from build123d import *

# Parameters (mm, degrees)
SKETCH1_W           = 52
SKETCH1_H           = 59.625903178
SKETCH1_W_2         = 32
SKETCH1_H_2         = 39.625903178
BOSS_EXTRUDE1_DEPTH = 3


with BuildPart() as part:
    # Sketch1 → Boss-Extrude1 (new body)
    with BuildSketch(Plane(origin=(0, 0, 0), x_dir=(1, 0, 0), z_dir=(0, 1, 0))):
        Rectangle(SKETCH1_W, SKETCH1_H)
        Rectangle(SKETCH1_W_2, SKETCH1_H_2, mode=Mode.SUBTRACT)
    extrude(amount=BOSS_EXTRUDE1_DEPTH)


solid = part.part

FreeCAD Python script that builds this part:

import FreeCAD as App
import Part
import Sketcher


def add_polygon(sketch, points):
    """Adds a closed chain of lines whose ends are joined by coincident constraints."""
    first, n = sketch.GeometryCount, len(points)
    for a, b in zip(points, points[1:] + points[:1]):
        sketch.addGeometry(Part.LineSegment(App.Vector(*a, 0), App.Vector(*b, 0)), False)
    for i in range(n):
        sketch.addConstraint(Sketcher.Constraint("Coincident", first + i, 2, first + (i + 1) % n, 1))

doc = App.newDocument("Part")
body = doc.addObject("PartDesign::Body", "Body")

sketch1 = body.newObject("Sketcher::SketchObject", "Sketch")
sketch1.AttachmentSupport = (doc.getObject("XZ_Plane"), [""])
sketch1.MapMode = "FlatFace"
add_polygon(sketch1, [(-26, -30), (-26, 30), (26, 30), (26, -30)])
add_polygon(sketch1, [(16, 20), (-16, 20), (-16, -20), (16, -20)])
sketch1.addConstraint(Sketcher.Constraint("Vertical", 0))
sketch1.addConstraint(Sketcher.Constraint("Horizontal", 1))
sketch1.addConstraint(Sketcher.Constraint("Vertical", 2))
sketch1.addConstraint(Sketcher.Constraint("Horizontal", 3))
sketch1.addConstraint(Sketcher.Constraint("Horizontal", 4))
sketch1.addConstraint(Sketcher.Constraint("Vertical", 5))
sketch1.addConstraint(Sketcher.Constraint("Horizontal", 6))
sketch1.addConstraint(Sketcher.Constraint("Vertical", 7))
sketch1.addConstraint(Sketcher.Constraint("Symmetric", 0, 2, 2, 2, -1, 1))
sketch1.addConstraint(Sketcher.Constraint("Symmetric", 4, 2, 6, 2, -1, 1))
sketch1.addConstraint(Sketcher.Constraint("DistanceX", 1, 1, 1, 2, 52.0))
sketch1.addConstraint(Sketcher.Constraint("DistanceX", 4, 2, 4, 1, 32.0))
sketch1.addConstraint(Sketcher.Constraint("DistanceY", 4, 2, 0, 2, 10.0))
sketch1.addConstraint(Sketcher.Constraint("DistanceY", 0, 1, 0, 2, 59.625903))
pad1 = body.newObject("PartDesign::Pad", "Pad")
pad1.Profile = sketch1
pad1.Length = 3
pad1.Reversed = True

doc.recompute()
